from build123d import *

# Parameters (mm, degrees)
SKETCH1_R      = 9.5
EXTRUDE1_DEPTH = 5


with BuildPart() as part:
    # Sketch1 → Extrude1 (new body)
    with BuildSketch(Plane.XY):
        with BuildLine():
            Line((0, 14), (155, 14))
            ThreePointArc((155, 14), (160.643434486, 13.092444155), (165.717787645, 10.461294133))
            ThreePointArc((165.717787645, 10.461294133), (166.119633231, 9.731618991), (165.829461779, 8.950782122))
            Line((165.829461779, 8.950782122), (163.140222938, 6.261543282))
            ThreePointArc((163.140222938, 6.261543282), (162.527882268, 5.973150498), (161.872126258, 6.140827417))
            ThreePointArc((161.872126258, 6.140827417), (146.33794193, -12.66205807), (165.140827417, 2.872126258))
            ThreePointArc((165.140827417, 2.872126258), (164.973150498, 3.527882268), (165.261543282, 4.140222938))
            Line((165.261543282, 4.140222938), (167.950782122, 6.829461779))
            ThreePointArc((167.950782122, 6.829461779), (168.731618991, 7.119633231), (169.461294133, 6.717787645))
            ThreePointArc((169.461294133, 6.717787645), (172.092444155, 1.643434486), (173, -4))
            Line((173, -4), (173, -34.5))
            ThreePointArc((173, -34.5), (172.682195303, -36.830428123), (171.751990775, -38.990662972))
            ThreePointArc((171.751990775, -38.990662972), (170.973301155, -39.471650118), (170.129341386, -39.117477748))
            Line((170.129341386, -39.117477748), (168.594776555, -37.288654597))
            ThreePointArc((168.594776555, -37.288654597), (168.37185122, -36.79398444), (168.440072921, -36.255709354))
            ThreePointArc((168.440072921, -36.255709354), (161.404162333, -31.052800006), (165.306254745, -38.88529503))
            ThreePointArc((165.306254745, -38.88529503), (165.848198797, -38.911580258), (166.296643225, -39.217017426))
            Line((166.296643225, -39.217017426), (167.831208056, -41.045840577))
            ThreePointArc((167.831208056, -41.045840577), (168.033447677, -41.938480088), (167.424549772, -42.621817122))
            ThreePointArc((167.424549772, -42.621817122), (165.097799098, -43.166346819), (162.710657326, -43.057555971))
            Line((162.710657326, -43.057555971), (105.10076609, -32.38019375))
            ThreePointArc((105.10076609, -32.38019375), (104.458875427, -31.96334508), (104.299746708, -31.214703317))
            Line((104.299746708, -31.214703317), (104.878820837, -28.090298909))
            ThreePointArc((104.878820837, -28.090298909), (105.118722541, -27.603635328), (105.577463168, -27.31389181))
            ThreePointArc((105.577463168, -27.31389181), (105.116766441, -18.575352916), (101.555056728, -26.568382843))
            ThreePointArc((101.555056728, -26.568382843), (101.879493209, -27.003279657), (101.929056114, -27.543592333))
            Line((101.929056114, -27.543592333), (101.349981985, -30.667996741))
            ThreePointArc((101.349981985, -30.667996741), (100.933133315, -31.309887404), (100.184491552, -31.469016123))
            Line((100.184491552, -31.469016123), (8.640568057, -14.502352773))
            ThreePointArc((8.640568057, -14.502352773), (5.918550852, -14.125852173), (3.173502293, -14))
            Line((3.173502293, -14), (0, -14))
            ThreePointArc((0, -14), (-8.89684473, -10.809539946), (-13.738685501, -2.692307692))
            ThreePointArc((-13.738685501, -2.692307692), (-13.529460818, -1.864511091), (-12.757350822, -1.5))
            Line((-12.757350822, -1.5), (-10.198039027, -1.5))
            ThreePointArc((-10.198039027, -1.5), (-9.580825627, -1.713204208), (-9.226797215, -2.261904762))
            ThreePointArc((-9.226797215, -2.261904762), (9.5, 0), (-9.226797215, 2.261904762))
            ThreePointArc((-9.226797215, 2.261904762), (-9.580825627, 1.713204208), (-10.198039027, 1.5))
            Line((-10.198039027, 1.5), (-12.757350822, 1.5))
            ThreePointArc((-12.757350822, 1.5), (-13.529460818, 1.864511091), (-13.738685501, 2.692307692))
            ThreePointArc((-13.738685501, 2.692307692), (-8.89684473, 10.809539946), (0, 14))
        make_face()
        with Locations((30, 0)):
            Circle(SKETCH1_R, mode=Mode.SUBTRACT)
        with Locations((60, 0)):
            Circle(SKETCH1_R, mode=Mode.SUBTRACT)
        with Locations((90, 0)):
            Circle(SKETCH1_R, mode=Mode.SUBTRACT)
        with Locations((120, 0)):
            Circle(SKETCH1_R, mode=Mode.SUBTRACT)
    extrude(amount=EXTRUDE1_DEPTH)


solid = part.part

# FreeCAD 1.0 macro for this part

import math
import FreeCAD as App
import Part
import Sketcher
Q = App.Units.Quantity

doc = App.newDocument("Part")
body = doc.addObject("PartDesign::Body", "Body")

# Sketch on XY plane
sketch1 = body.newObject("Sketcher::SketchObject", "Sketch")
sketch1.AttachmentSupport = (doc.getObject("XY_Plane"), [""])
sketch1.MapMode = "FlatFace"
sketch1.addGeometry(Part.LineSegment(App.Vector(155, 14, 0), App.Vector(0, 14, 0)), False)
sketch1.addGeometry(Part.ArcOfCircle(Part.Circle(App.Vector(0, 0, 0), App.Vector(0, 0, 1), 14), math.radians(90), math.radians(169)), False)
sketch1.addGeometry(Part.ArcOfCircle(Part.Circle(App.Vector(-12.8, 2.5, 0), App.Vector(0, 0, 1), 1), math.radians(169), math.radians(270)), False)
sketch1.addGeometry(Part.LineSegment(App.Vector(-12.8, 1.5, 0), App.Vector(-10.2, 1.5, 0)), False)
sketch1.addGeometry(Part.ArcOfCircle(Part.Circle(App.Vector(-10.2, 2.5, 0), App.Vector(0, 0, 1), 1), math.radians(-90), math.radians(-14)), False)
sketch1.addGeometry(Part.ArcOfCircle(Part.Circle(App.Vector(0, 0, 0), App.Vector(0, 0, 1), 9.5), math.radians(-166), math.radians(166)), False)
sketch1.addGeometry(Part.ArcOfCircle(Part.Circle(App.Vector(-10.2, -2.5, 0), App.Vector(0, 0, 1), 1), math.radians(14), math.radians(90)), False)
sketch1.addGeometry(Part.LineSegment(App.Vector(-10.2, -1.5, 0), App.Vector(-12.8, -1.5, 0)), False)
sketch1.addGeometry(Part.ArcOfCircle(Part.Circle(App.Vector(-12.8, -2.5, 0), App.Vector(0, 0, 1), 1), math.radians(90), math.radians(191)), False)
sketch1.addGeometry(Part.ArcOfCircle(Part.Circle(App.Vector(0, 0, 0), App.Vector(0, 0, 1), 14), math.radians(-169), math.radians(-90)), False)
sketch1.addGeometry(Part.LineSegment(App.Vector(0, -14, 0), App.Vector(3.2, -14, 0)), False)
sketch1.addGeometry(Part.ArcOfCircle(Part.Circle(App.Vector(3.2, -44, 0), App.Vector(0, 0, 1), 30), math.radians(79.5), math.radians(90)), False)
sketch1.addGeometry(Part.LineSegment(App.Vector(8.6, -14.5, 0), App.Vector(100.2, -31.5, 0)), False)
sketch1.addGeometry(Part.ArcOfCircle(Part.Circle(App.Vector(100.4, -30.5, 0), App.Vector(0, 0, 1), 1), math.radians(-101), math.radians(-10)), False)
sketch1.addGeometry(Part.LineSegment(App.Vector(101.3, -30.7, 0), App.Vector(101.9, -27.5, 0)), False)
sketch1.addGeometry(Part.ArcOfCircle(Part.Circle(App.Vector(100.9, -27.4, 0), App.Vector(0, 0, 1), 1), math.radians(-11), math.radians(52)), False)
sketch1.addGeometry(Part.ArcOfCircle(Part.Circle(App.Vector(104.3, -23, 0), App.Vector(0, 0, 1), 4.5), math.radians(-73), math.radians(232)), False)
sketch1.addGeometry(Part.ArcOfCircle(Part.Circle(App.Vector(105.9, -28.3, 0), App.Vector(0, 0, 1), 1), math.radians(107), math.radians(169)), False)
sketch1.addGeometry(Part.LineSegment(App.Vector(104.9, -28.1, 0), App.Vector(104.3, -31.2, 0)), False)
sketch1.addGeometry(Part.ArcOfCircle(Part.Circle(App.Vector(105.3, -31.4, 0), App.Vector(0, 0, 1), 1), math.radians(169), math.radians(260)), False)
sketch1.addGeometry(Part.LineSegment(App.Vector(105.1, -32.4, 0), App.Vector(162.7, -43.1, 0)), False)
sketch1.addGeometry(Part.ArcOfCircle(Part.Circle(App.Vector(164.3, -34.5, 0), App.Vector(0, 0, 1), 8.7), math.radians(-100), math.radians(-69)), False)
sketch1.addGeometry(Part.ArcOfCircle(Part.Circle(App.Vector(167.1, -41.7, 0), App.Vector(0, 0, 1), 1), math.radians(-69), math.radians(40)), False)
sketch1.addGeometry(Part.LineSegment(App.Vector(167.8, -41, 0), App.Vector(166.3, -39.2, 0)), False)
sketch1.addGeometry(Part.ArcOfCircle(Part.Circle(App.Vector(165.5, -39.9, 0), App.Vector(0, 0, 1), 1), math.radians(40), math.radians(103)), False)
sketch1.addGeometry(Part.ArcOfCircle(Part.Circle(App.Vector(164.3, -34.5, 0), App.Vector(0, 0, 1), 4.5), math.radians(-23), math.radians(283)), False)
sketch1.addGeometry(Part.ArcOfCircle(Part.Circle(App.Vector(169.4, -36.6, 0), App.Vector(0, 0, 1), 1), math.radians(157), math.radians(220)), False)
sketch1.addGeometry(Part.LineSegment(App.Vector(168.6, -37.3, 0), App.Vector(170.1, -39.1, 0)), False)
sketch1.addGeometry(Part.ArcOfCircle(Part.Circle(App.Vector(170.9, -38.5, 0), App.Vector(0, 0, 1), 1), math.radians(-140), math.radians(-31)), False)
sketch1.addGeometry(Part.ArcOfCircle(Part.Circle(App.Vector(164.3, -34.5, 0), App.Vector(0, 0, 1), 8.7), math.radians(-31), math.radians(0)), False)
sketch1.addGeometry(Part.LineSegment(App.Vector(173, -34.5, 0), App.Vector(173, -4, 0)), False)
sketch1.addGeometry(Part.ArcOfCircle(Part.Circle(App.Vector(155, -4, 0), App.Vector(0, 0, 1), 18), math.radians(0), math.radians(37)), False)
sketch1.addGeometry(Part.ArcOfCircle(Part.Circle(App.Vector(168.7, 6.1, 0), App.Vector(0, 0, 1), 1), math.radians(37), math.radians(135)), False)
sketch1.addGeometry(Part.LineSegment(App.Vector(168, 6.8, 0), App.Vector(165.3, 4.1, 0)), False)
sketch1.addGeometry(Part.ArcOfCircle(Part.Circle(App.Vector(166, 3.4, 0), App.Vector(0, 0, 1), 1), math.radians(135), math.radians(214)), False)
sketch1.addGeometry(Part.ArcOfCircle(Part.Circle(App.Vector(155, -4, 0), App.Vector(0, 0, 1), 12.2), math.radians(56), math.radians(394)), False)
sketch1.addGeometry(Part.ArcOfCircle(Part.Circle(App.Vector(162.4, 7, 0), App.Vector(0, 0, 1), 1), math.radians(-124), math.radians(-45)), False)
sketch1.addGeometry(Part.LineSegment(App.Vector(163.1, 6.3, 0), App.Vector(165.8, 9, 0)), False)
sketch1.addGeometry(Part.ArcOfCircle(Part.Circle(App.Vector(165.1, 9.7, 0), App.Vector(0, 0, 1), 1), math.radians(-45), math.radians(53)), False)
sketch1.addGeometry(Part.ArcOfCircle(Part.Circle(App.Vector(155, -4, 0), App.Vector(0, 0, 1), 18), math.radians(53), math.radians(90)), False)
sketch1.addGeometry(Part.Circle(App.Vector(120, 0, 0), App.Vector(0, 0, 1), 9.5), False)
sketch1.addGeometry(Part.Circle(App.Vector(90, 0, 0), App.Vector(0, 0, 1), 9.5), False)
sketch1.addGeometry(Part.Circle(App.Vector(60, 0, 0), App.Vector(0, 0, 1), 9.5), False)
sketch1.addGeometry(Part.Circle(App.Vector(30, 0, 0), App.Vector(0, 0, 1), 9.5), False)
sketch1.addConstraint(Sketcher.Constraint("Tangent", 0, 2, 1, 1))
sketch1.addConstraint(Sketcher.Constraint("Tangent", 1, 2, 2, 1))
sketch1.addConstraint(Sketcher.Constraint("Tangent", 2, 2, 3, 1))
sketch1.addConstraint(Sketcher.Constraint("Tangent", 3, 2, 4, 1))
sketch1.addConstraint(Sketcher.Constraint("Tangent", 4, 2, 5, 2))
sketch1.addConstraint(Sketcher.Constraint("Tangent", 5, 1, 6, 1))
sketch1.addConstraint(Sketcher.Constraint("Tangent", 6, 2, 7, 1))
sketch1.addConstraint(Sketcher.Constraint("Tangent", 7, 2, 8, 1))
sketch1.addConstraint(Sketcher.Constraint("Tangent", 8, 2, 9, 1))
sketch1.addConstraint(Sketcher.Constraint("Tangent", 9, 2, 10, 1))
sketch1.addConstraint(Sketcher.Constraint("Tangent", 10, 2, 11, 2))
sketch1.addConstraint(Sketcher.Constraint("Tangent", 11, 1, 12, 1))
sketch1.addConstraint(Sketcher.Constraint("Tangent", 12, 2, 13, 1))
sketch1.addConstraint(Sketcher.Constraint("Tangent", 13, 2, 14, 1))
sketch1.addConstraint(Sketcher.Constraint("Tangent", 14, 2, 15, 1))
sketch1.addConstraint(Sketcher.Constraint("Tangent", 15, 2, 16, 2))
sketch1.addConstraint(Sketcher.Constraint("Tangent", 16, 1, 17, 1))
sketch1.addConstraint(Sketcher.Constraint("Tangent", 17, 2, 18, 1))
sketch1.addConstraint(Sketcher.Constraint("Tangent", 18, 2, 19, 1))
sketch1.addConstraint(Sketcher.Constraint("Tangent", 19, 2, 20, 1))
sketch1.addConstraint(Sketcher.Constraint("Tangent", 20, 2, 21, 1))
sketch1.addConstraint(Sketcher.Constraint("Tangent", 21, 2, 22, 1))
sketch1.addConstraint(Sketcher.Constraint("Tangent", 22, 2, 23, 1))
sketch1.addConstraint(Sketcher.Constraint("Tangent", 23, 2, 24, 1))
sketch1.addConstraint(Sketcher.Constraint("Tangent", 24, 2, 25, 2))
sketch1.addConstraint(Sketcher.Constraint("Tangent", 25, 1, 26, 1))
sketch1.addConstraint(Sketcher.Constraint("Tangent", 26, 2, 27, 1))
sketch1.addConstraint(Sketcher.Constraint("Tangent", 27, 2, 28, 1))
sketch1.addConstraint(Sketcher.Constraint("Tangent", 28, 2, 29, 1))
sketch1.addConstraint(Sketcher.Constraint("Tangent", 29, 2, 30, 1))
sketch1.addConstraint(Sketcher.Constraint("Tangent", 30, 2, 31, 1))
sketch1.addConstraint(Sketcher.Constraint("Tangent", 31, 2, 32, 1))
sketch1.addConstraint(Sketcher.Constraint("Tangent", 32, 2, 33, 1))
sketch1.addConstraint(Sketcher.Constraint("Tangent", 33, 2, 34, 1))
sketch1.addConstraint(Sketcher.Constraint("Tangent", 34, 2, 35, 2))
sketch1.addConstraint(Sketcher.Constraint("Tangent", 35, 1, 36, 1))
sketch1.addConstraint(Sketcher.Constraint("Tangent", 36, 2, 37, 1))
sketch1.addConstraint(Sketcher.Constraint("Tangent", 37, 2, 38, 1))
sketch1.addConstraint(Sketcher.Constraint("Tangent", 38, 2, 39, 1))
sketch1.addConstraint(Sketcher.Constraint("Tangent", 39, 2, 0, 1))
sketch1.addConstraint(Sketcher.Constraint("Horizontal", 0))
sketch1.addConstraint(Sketcher.Constraint("Horizontal", 3))
sketch1.addConstraint(Sketcher.Constraint("Horizontal", 7))
sketch1.addConstraint(Sketcher.Constraint("Horizontal", 10))
sketch1.addConstraint(Sketcher.Constraint("Vertical", 30))
sketch1.addConstraint(Sketcher.Constraint("Coincident", 1, 3, -1, 1))
sketch1.addConstraint(Sketcher.Constraint("Coincident", 5, 3, -1, 1))
sketch1.addConstraint(Sketcher.Constraint("Coincident", 9, 3, -1, 1))
sketch1.addConstraint(Sketcher.Constraint("Coincident", 25, 3, 21, 3))
sketch1.addConstraint(Sketcher.Constraint("Coincident", 29, 3, 21, 3))
sketch1.addConstraint(Sketcher.Constraint("Coincident", 35, 3, 31, 3))
sketch1.addConstraint(Sketcher.Constraint("Coincident", 39, 3, 31, 3))
sketch1.addConstraint(Sketcher.Constraint("Equal", 2, 4))
sketch1.addConstraint(Sketcher.Constraint("Equal", 4, 6))
sketch1.addConstraint(Sketcher.Constraint("Equal", 6, 8))
sketch1.addConstraint(Sketcher.Constraint("Equal", 1, 9))
sketch1.addConstraint(Sketcher.Constraint("Equal", 8, 13))
sketch1.addConstraint(Sketcher.Constraint("Equal", 13, 15))
sketch1.addConstraint(Sketcher.Constraint("Equal", 15, 17))
sketch1.addConstraint(Sketcher.Constraint("Equal", 17, 19))
sketch1.addConstraint(Sketcher.Constraint("Equal", 19, 22))
sketch1.addConstraint(Sketcher.Constraint("Equal", 22, 24))
sketch1.addConstraint(Sketcher.Constraint("Equal", 16, 25))
sketch1.addConstraint(Sketcher.Constraint("Equal", 24, 26))
sketch1.addConstraint(Sketcher.Constraint("Equal", 26, 28))
sketch1.addConstraint(Sketcher.Constraint("Equal", 21, 29))
sketch1.addConstraint(Sketcher.Constraint("Equal", 28, 32))
sketch1.addConstraint(Sketcher.Constraint("Equal", 32, 34))
sketch1.addConstraint(Sketcher.Constraint("Equal", 34, 36))
sketch1.addConstraint(Sketcher.Constraint("Equal", 36, 38))
sketch1.addConstraint(Sketcher.Constraint("Equal", 31, 39))
sketch1.addConstraint(Sketcher.Constraint("Equal", 5, 40))
sketch1.addConstraint(Sketcher.Constraint("Equal", 40, 41))
sketch1.addConstraint(Sketcher.Constraint("Equal", 41, 42))
sketch1.addConstraint(Sketcher.Constraint("Equal", 42, 43))
sketch1.addConstraint(Sketcher.Constraint("PointOnObject", 40, 3, -1))
sketch1.addConstraint(Sketcher.Constraint("PointOnObject", 41, 3, -1))
sketch1.addConstraint(Sketcher.Constraint("PointOnObject", 42, 3, -1))
sketch1.addConstraint(Sketcher.Constraint("PointOnObject", 43, 3, -1))
sketch1.addConstraint(Sketcher.Constraint("Perpendicular", 12, 14))
sketch1.addConstraint(Sketcher.Constraint("Parallel", 14, 18))
sketch1.addConstraint(Sketcher.Constraint("Perpendicular", 18, 20))
sketch1.addConstraint(Sketcher.Constraint("Parallel", 23, 27))
sketch1.addConstraint(Sketcher.Constraint("Parallel", 33, 37))
sketch1.addConstraint(Sketcher.Constraint("Vertical", 4, 3, 6, 3))
sketch1.addConstraint(Sketcher.Constraint("Equal", 14, 18))
sketch1.addConstraint(Sketcher.Constraint("Equal", 23, 27))
sketch1.addConstraint(Sketcher.Constraint("Equal", 33, 37))
sketch1.addConstraint(Sketcher.Constraint("Diameter", 40, 19.0))
sketch1.addConstraint(Sketcher.Constraint("Radius", 1, 14.0))
sketch1.addConstraint(Sketcher.Constraint("Radius", 2, 1.0))
sketch1.addConstraint(Sketcher.Constraint("Radius", 11, 30.0))
sketch1.addConstraint(Sketcher.Constraint("Radius", 31, 18.0))
sketch1.addConstraint(Sketcher.Constraint("Radius", 16, 4.5))
sketch1.addConstraint(Sketcher.Constraint("DistanceX", 0, 2, 0, 1, 155.0))
sketch1.addConstraint(Sketcher.Constraint("Angle", 23, Q("130 deg")))
sketch1.addConstraint(Sketcher.Constraint("Angle", 33, Q("-135 deg")))
sketch1.addConstraint(Sketcher.Constraint("Radius", 35, 12.25))
sketch1.addConstraint(Sketcher.Constraint("DistanceY", 30, 1, 30, 2, 30.5))
sketch1.addConstraint(Sketcher.Constraint("DistanceY", 16, 3, -1, 1, 23.0))
sketch1.addConstraint(Sketcher.Constraint("DistanceX", -1, 1, 40, 3, 120.0))
sketch1.addConstraint(Sketcher.Constraint("DistanceX", -1, 1, 41, 3, 90.0))
sketch1.addConstraint(Sketcher.Constraint("DistanceX", -1, 1, 42, 3, 60.0))
sketch1.addConstraint(Sketcher.Constraint("DistanceX", -1, 1, 43, 3, 30.0))
sketch1.addConstraint(Sketcher.Constraint("Angle", 12, Q("-10.5 deg")))
sketch1.addConstraint(Sketcher.Constraint("DistanceY", -1, 1, 2, 3, 2.5))
sketch1.addConstraint(Sketcher.Constraint("DistanceX", -1, 1, 19, 3, 105.283002))
sketch1.addConstraint(Sketcher.Constraint("Radius", 21, 8.703293))
sketch1.addConstraint(Sketcher.Constraint("DistanceX", -1, 1, 15, 3, 100.945801))
sketch1.addConstraint(Sketcher.Constraint("DistanceX", -1, 1, 24, 3, 165.530599))
sketch1.addConstraint(Sketcher.Constraint("DistanceY", 17, 2, -1, 1, 28.090299))
sketch1.addConstraint(Sketcher.Constraint("Distance", 33, 3.803158))
pad1 = body.newObject("PartDesign::Pad", "Pad")
pad1.Profile = sketch1
pad1.Length = 5

doc.recompute()
